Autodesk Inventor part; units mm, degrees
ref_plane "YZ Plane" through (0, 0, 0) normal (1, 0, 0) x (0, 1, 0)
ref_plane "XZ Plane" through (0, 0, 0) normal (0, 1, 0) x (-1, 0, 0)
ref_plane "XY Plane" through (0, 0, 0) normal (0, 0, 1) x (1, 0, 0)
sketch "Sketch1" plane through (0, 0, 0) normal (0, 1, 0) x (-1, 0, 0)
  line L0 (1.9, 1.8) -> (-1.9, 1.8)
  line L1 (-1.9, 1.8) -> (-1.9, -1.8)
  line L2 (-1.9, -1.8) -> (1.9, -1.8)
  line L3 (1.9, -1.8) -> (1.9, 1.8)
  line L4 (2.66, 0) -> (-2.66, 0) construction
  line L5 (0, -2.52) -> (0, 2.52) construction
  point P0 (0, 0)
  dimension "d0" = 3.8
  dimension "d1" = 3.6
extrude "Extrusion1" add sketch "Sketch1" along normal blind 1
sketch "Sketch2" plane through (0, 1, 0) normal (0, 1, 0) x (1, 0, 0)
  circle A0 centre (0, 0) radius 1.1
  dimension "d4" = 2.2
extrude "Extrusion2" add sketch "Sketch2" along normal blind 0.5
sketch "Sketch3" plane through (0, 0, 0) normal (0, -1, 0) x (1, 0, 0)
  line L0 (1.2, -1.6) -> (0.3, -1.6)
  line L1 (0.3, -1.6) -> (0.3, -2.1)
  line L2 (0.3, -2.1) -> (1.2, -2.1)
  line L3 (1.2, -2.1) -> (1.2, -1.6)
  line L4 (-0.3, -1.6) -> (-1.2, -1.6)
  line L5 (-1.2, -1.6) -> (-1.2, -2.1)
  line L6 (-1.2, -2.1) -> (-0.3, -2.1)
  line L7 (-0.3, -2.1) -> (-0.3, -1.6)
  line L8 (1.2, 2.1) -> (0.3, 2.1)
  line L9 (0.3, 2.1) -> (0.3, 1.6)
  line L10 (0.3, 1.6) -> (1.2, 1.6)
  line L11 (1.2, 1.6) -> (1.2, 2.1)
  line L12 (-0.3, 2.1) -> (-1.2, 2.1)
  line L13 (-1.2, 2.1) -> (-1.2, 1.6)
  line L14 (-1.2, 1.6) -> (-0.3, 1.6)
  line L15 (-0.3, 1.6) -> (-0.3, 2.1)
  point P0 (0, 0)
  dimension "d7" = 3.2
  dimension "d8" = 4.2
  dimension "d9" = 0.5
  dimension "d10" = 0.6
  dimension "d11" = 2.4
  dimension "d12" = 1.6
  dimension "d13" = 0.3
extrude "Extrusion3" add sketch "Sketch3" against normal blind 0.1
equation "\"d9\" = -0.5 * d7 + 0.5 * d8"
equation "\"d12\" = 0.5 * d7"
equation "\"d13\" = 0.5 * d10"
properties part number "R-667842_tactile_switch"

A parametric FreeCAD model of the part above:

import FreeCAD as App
import Part
import Sketcher

V = App.Vector

doc = App.newDocument("Part")
body = doc.addObject("PartDesign::Body", "Body")

sketch1 = body.newObject("Sketcher::SketchObject", "Sketch")
sketch1.AttachmentSupport = (doc.getObject("XZ_Plane"), [""])
sketch1.MapMode = "FlatFace"
sketch1.addGeometry(Part.LineSegment(V(-1.9, -1.8, 0), V(-1.9, 1.8, 0)), False)
sketch1.addGeometry(Part.LineSegment(V(-1.9, 1.8, 0), V(1.9, 1.8, 0)), False)
sketch1.addGeometry(Part.LineSegment(V(1.9, 1.8, 0), V(1.9, -1.8, 0)), False)
sketch1.addGeometry(Part.LineSegment(V(1.9, -1.8, 0), V(-1.9, -1.8, 0)), False)
sketch1.addConstraint(Sketcher.Constraint("Coincident", 0, 2, 1, 1))
sketch1.addConstraint(Sketcher.Constraint("Coincident", 1, 2, 2, 1))
sketch1.addConstraint(Sketcher.Constraint("Coincident", 2, 2, 3, 1))
sketch1.addConstraint(Sketcher.Constraint("Coincident", 3, 2, 0, 1))
sketch1.addConstraint(Sketcher.Constraint("Vertical", 0))
sketch1.addConstraint(Sketcher.Constraint("Horizontal", 1))
sketch1.addConstraint(Sketcher.Constraint("Vertical", 2))
sketch1.addConstraint(Sketcher.Constraint("Horizontal", 3))
sketch1.addConstraint(Sketcher.Constraint("Symmetric", 0, 2, 2, 2, -1, 1))
sketch1.addConstraint(Sketcher.Constraint("DistanceX", 1, 1, 1, 2, 3.8))
sketch1.addConstraint(Sketcher.Constraint("DistanceY", 0, 1, 0, 2, 3.6))
pad1 = body.newObject("PartDesign::Pad", "Pad")
pad1.Profile = sketch1
pad1.Length = 1
pad1.Reversed = True

sketch2 = body.newObject("Sketcher::SketchObject", "Sketch001")
sketch2.AttachmentSupport = (doc.getObject("XZ_Plane"), [""])
sketch2.MapMode = "FlatFace"
sketch2.AttachmentOffset = App.Placement(V(0, 0, -1), App.Rotation())
sketch2.addGeometry(Part.Circle(V(0, 0, 0), V(0, 0, 1), 1.1), False)
sketch2.addConstraint(Sketcher.Constraint("Coincident", 0, 3, -1, 1))
sketch2.addConstraint(Sketcher.Constraint("Diameter", 0, 2.2))
pad2 = body.newObject("PartDesign::Pad", "Pad001")
pad2.Profile = sketch2
pad2.Length = 0.5
pad2.Reversed = True

sketch3 = body.newObject("Sketcher::SketchObject", "Sketch002")
sketch3.AttachmentSupport = (doc.getObject("XZ_Plane"), [""])
sketch3.MapMode = "FlatFace"
sketch3.addGeometry(Part.LineSegment(V(1.2, -2.1, 0), V(1.2, -1.6, 0)), False)
sketch3.addGeometry(Part.LineSegment(V(1.2, -1.6, 0), V(0.3, -1.6, 0)), False)
sketch3.addGeometry(Part.LineSegment(V(0.3, -1.6, 0), V(0.3, -2.1, 0)), False)
sketch3.addGeometry(Part.LineSegment(V(0.3, -2.1, 0), V(1.2, -2.1, 0)), False)
sketch3.addGeometry(Part.LineSegment(V(-0.3, -2.1, 0), V(-0.3, -1.6, 0)), False)
sketch3.addGeometry(Part.LineSegment(V(-0.3, -1.6, 0), V(-1.2, -1.6, 0)), False)
sketch3.addGeometry(Part.LineSegment(V(-1.2, -1.6, 0), V(-1.2, -2.1, 0)), False)
sketch3.addGeometry(Part.LineSegment(V(-1.2, -2.1, 0), V(-0.3, -2.1, 0)), False)
sketch3.addGeometry(Part.LineSegment(V(1.2, 1.6, 0), V(1.2, 2.1, 0)), False)
sketch3.addGeometry(Part.LineSegment(V(1.2, 2.1, 0), V(0.3, 2.1, 0)), False)
sketch3.addGeometry(Part.LineSegment(V(0.3, 2.1, 0), V(0.3, 1.6, 0)), False)
sketch3.addGeometry(Part.LineSegment(V(0.3, 1.6, 0), V(1.2, 1.6, 0)), False)
sketch3.addGeometry(Part.LineSegment(V(-0.3, 1.6, 0), V(-0.3, 2.1, 0)), False)
sketch3.addGeometry(Part.LineSegment(V(-0.3, 2.1, 0), V(-1.2, 2.1, 0)), False)
sketch3.addGeometry(Part.LineSegment(V(-1.2, 2.1, 0), V(-1.2, 1.6, 0)), False)
sketch3.addGeometry(Part.LineSegment(V(-1.2, 1.6, 0), V(-0.3, 1.6, 0)), False)
sketch3.addConstraint(Sketcher.Constraint("Coincident", 0, 2, 1, 1))
sketch3.addConstraint(Sketcher.Constraint("Coincident", 1, 2, 2, 1))
sketch3.addConstraint(Sketcher.Constraint("Coincident", 2, 2, 3, 1))
sketch3.addConstraint(Sketcher.Constraint("Coincident", 3, 2, 0, 1))
sketch3.addConstraint(Sketcher.Constraint("Coincident", 4, 2, 5, 1))
sketch3.addConstraint(Sketcher.Constraint("Coincident", 5, 2, 6, 1))
sketch3.addConstraint(Sketcher.Constraint("Coincident", 6, 2, 7, 1))
sketch3.addConstraint(Sketcher.Constraint("Coincident", 7, 2, 4, 1))
sketch3.addConstraint(Sketcher.Constraint("Coincident", 8, 2, 9, 1))
sketch3.addConstraint(Sketcher.Constraint("Coincident", 9, 2, 10, 1))
sketch3.addConstraint(Sketcher.Constraint("Coincident", 10, 2, 11, 1))
sketch3.addConstraint(Sketcher.Constraint("Coincident", 11, 2, 8, 1))
sketch3.addConstraint(Sketcher.Constraint("Coincident", 12, 2, 13, 1))
sketch3.addConstraint(Sketcher.Constraint("Coincident", 13, 2, 14, 1))
sketch3.addConstraint(Sketcher.Constraint("Coincident", 14, 2, 15, 1))
sketch3.addConstraint(Sketcher.Constraint("Coincident", 15, 2, 12, 1))
sketch3.addConstraint(Sketcher.Constraint("Vertical", 0))
sketch3.addConstraint(Sketcher.Constraint("Horizontal", 1))
sketch3.addConstraint(Sketcher.Constraint("Vertical", 2))
sketch3.addConstraint(Sketcher.Constraint("Horizontal", 3))
sketch3.addConstraint(Sketcher.Constraint("Vertical", 4))
sketch3.addConstraint(Sketcher.Constraint("Horizontal", 5))
sketch3.addConstraint(Sketcher.Constraint("Vertical", 6))
sketch3.addConstraint(Sketcher.Constraint("Horizontal", 7))
sketch3.addConstraint(Sketcher.Constraint("Vertical", 8))
sketch3.addConstraint(Sketcher.Constraint("Horizontal", 9))
sketch3.addConstraint(Sketcher.Constraint("Vertical", 10))
sketch3.addConstraint(Sketcher.Constraint("Horizontal", 11))
sketch3.addConstraint(Sketcher.Constraint("Vertical", 12))
sketch3.addConstraint(Sketcher.Constraint("Horizontal", 13))
sketch3.addConstraint(Sketcher.Constraint("Vertical", 14))
sketch3.addConstraint(Sketcher.Constraint("Horizontal", 15))
sketch3.addConstraint(Sketcher.Constraint("Symmetric", 6, 2, 8, 2, -1, 1))
sketch3.addConstraint(Sketcher.Constraint("Symmetric", 4, 2, 10, 2, -1, 1))
sketch3.addConstraint(Sketcher.Constraint("Symmetric", 2, 2, 12, 2, -1, 1))
sketch3.addConstraint(Sketcher.Constraint("Symmetric", 0, 2, 14, 2, -1, 1))
sketch3.addConstraint(Sketcher.Constraint("Symmetric", 1, 2, 4, 2, -2))
sketch3.addConstraint(Sketcher.Constraint("Symmetric", 3, 2, 6, 2, -2))
sketch3.addConstraint(Sketcher.Constraint("DistanceY", 0, 1, 0, 2, 0.5))
sketch3.addConstraint(Sketcher.Constraint("DistanceY", 0, 2, -1, 1, 1.6))
sketch3.addConstraint(Sketcher.Constraint("DistanceX", -1, 1, 1, 2, 0.3))
sketch3.addConstraint(Sketcher.Constraint("DistanceX", 5, 2, 0, 2, 2.4))
pad3 = body.newObject("PartDesign::Pad", "Pad002")
pad3.Profile = sketch3
pad3.Length = 0.1
pad3.Reversed = True

doc.recompute()
